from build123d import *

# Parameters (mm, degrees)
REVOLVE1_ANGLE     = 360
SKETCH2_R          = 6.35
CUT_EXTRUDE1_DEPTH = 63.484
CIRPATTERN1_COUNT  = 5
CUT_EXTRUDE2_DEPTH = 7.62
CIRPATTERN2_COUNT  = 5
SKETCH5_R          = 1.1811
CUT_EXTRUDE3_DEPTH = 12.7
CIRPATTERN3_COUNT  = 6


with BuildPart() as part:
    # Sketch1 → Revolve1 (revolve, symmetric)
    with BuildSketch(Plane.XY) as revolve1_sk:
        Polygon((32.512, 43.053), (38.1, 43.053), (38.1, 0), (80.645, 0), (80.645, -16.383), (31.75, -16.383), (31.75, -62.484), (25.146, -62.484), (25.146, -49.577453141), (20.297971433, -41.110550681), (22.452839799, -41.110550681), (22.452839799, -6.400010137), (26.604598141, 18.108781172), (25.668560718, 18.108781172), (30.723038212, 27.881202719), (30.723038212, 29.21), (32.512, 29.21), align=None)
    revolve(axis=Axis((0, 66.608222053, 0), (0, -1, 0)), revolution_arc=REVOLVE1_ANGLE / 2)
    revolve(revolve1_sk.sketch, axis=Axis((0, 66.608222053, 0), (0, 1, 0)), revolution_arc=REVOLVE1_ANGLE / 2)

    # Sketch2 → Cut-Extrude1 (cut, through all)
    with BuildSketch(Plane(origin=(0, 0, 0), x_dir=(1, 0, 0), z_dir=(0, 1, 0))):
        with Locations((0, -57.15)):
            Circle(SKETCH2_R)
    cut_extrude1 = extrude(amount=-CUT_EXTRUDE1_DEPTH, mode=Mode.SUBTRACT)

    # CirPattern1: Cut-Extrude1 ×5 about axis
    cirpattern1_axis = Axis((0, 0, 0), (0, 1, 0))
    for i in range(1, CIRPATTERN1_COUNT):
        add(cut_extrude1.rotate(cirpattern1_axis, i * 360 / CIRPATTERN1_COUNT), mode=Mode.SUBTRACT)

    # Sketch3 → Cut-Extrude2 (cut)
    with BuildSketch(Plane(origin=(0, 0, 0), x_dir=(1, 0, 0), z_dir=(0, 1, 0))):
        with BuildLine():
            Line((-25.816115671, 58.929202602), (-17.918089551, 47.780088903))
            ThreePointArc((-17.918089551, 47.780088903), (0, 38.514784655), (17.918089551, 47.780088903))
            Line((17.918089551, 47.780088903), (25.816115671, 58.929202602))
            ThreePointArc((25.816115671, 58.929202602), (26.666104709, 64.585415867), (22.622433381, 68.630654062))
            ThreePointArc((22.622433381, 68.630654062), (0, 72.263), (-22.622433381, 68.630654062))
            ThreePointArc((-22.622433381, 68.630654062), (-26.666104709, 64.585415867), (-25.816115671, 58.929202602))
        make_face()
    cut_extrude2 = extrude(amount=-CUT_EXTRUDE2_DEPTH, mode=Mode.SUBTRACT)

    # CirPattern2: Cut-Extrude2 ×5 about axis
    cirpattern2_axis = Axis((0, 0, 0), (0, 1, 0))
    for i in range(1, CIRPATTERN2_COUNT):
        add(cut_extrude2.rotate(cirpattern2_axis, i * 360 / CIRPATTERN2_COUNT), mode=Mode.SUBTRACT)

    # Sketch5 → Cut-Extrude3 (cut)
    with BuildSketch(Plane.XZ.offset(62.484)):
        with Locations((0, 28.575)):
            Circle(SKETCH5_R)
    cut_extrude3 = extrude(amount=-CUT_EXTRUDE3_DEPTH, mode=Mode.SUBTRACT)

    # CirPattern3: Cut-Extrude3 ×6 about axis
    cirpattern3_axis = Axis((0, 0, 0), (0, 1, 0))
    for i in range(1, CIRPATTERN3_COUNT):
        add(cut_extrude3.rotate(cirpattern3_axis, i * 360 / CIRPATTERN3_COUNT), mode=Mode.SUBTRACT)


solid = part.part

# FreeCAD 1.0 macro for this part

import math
import FreeCAD as App
import Part
import Sketcher

V = App.Vector
Q = App.Units.Quantity

doc = App.newDocument("Part")
params = doc.addObject("Spreadsheet::Sheet", "Params")
for row, (alias, value) in enumerate([
    ("sketch1_width", "0.22 in"),
    ("sketch1_width2", "0.26 in"),
    ("sketch1_width3", "1.925 in"),
    ("sketch1_width4", "1.675 in"),
    ("sketch1_height", "0.545 in"),
    ("revolution_angle", "180 deg"),
    ("sketch2_width", "0.22 in"),
    ("sketch2_width2", "0.26 in"),
    ("sketch2_width3", "1.925 in"),
    ("sketch2_width4", "1.675 in"),
    ("sketch2_height", "0.545 in"),
    ("revolution2_angle", "180 deg"),
    ("sketch3_diameter", "0.5 in"),
    ("sketch4_radius", "0.25 in"),
    ("sketch4_radius2", "2.845 in"),
    ("pocket2_length", "0.3 in"),
    ("sketch5_diameter", "0.093 in"),
    ("pocket3_length", "0.5 in"),
], start=1):
    params.set(f"A{row}", alias)
    params.set(f"B{row}", "=" + value)
    params.setAlias(f"B{row}", alias)

body = doc.addObject("PartDesign::Body", "Body")

# Sketch on XY plane
sketch1 = body.newObject("Sketcher::SketchObject", "Sketch")
sketch1.AttachmentSupport = (doc.getObject("XY_Plane"), [""])
sketch1.MapMode = "FlatFace"
sketch1.addGeometry(Part.LineSegment(V(38.1, 43.053, 0), V(32.512, 43.053, 0)), False)
sketch1.addGeometry(Part.LineSegment(V(32.512, 43.053, 0), V(32.512, 29.21, 0)), False)
sketch1.addGeometry(Part.LineSegment(V(32.512, 29.21, 0), V(30.723038, 29.21, 0)), False)
sketch1.addGeometry(Part.LineSegment(V(30.723038, 29.21, 0), V(30.723038, 27.881203, 0)), False)
sketch1.addGeometry(Part.LineSegment(V(30.723038, 27.881203, 0), V(25.668561, 18.108781, 0)), False)
sketch1.addGeometry(Part.LineSegment(V(25.668561, 18.108781, 0), V(26.604598, 18.108781, 0)), False)
sketch1.addGeometry(Part.LineSegment(V(26.604598, 18.108781, 0), V(22.45284, -6.40001, 0)), False)
sketch1.addGeometry(Part.LineSegment(V(22.45284, -6.40001, 0), V(22.45284, -41.110551, 0)), False)
sketch1.addGeometry(Part.LineSegment(V(22.45284, -41.110551, 0), V(20.297971, -41.110551, 0)), False)
sketch1.addGeometry(Part.LineSegment(V(20.297971, -41.110551, 0), V(25.146, -49.577453, 0)), False)
sketch1.addGeometry(Part.LineSegment(V(25.146, -49.577453, 0), V(25.146, -62.484, 0)), False)
sketch1.addGeometry(Part.LineSegment(V(25.146, -62.484, 0), V(31.75, -62.484, 0)), False)
sketch1.addGeometry(Part.LineSegment(V(31.75, -62.484, 0), V(31.75, -16.383, 0)), False)
sketch1.addGeometry(Part.LineSegment(V(31.75, -16.383, 0), V(80.645, -16.383, 0)), False)
sketch1.addGeometry(Part.LineSegment(V(80.645, -16.383, 0), V(80.645, 0, 0)), False)
sketch1.addGeometry(Part.LineSegment(V(80.645, 0, 0), V(38.1, 0, 0)), False)
sketch1.addGeometry(Part.LineSegment(V(38.1, 0, 0), V(38.1, 43.053, 0)), False)
sketch1.addConstraint(Sketcher.Constraint("Coincident", 0, 2, 1, 1))
sketch1.addConstraint(Sketcher.Constraint("Coincident", 1, 2, 2, 1))
sketch1.addConstraint(Sketcher.Constraint("Coincident", 2, 2, 3, 1))
sketch1.addConstraint(Sketcher.Constraint("Coincident", 3, 2, 4, 1))
sketch1.addConstraint(Sketcher.Constraint("Coincident", 4, 2, 5, 1))
sketch1.addConstraint(Sketcher.Constraint("Coincident", 5, 2, 6, 1))
sketch1.addConstraint(Sketcher.Constraint("Coincident", 6, 2, 7, 1))
sketch1.addConstraint(Sketcher.Constraint("Coincident", 7, 2, 8, 1))
sketch1.addConstraint(Sketcher.Constraint("Coincident", 8, 2, 9, 1))
sketch1.addConstraint(Sketcher.Constraint("Coincident", 9, 2, 10, 1))
sketch1.addConstraint(Sketcher.Constraint("Coincident", 10, 2, 11, 1))
sketch1.addConstraint(Sketcher.Constraint("Coincident", 11, 2, 12, 1))
sketch1.addConstraint(Sketcher.Constraint("Coincident", 12, 2, 13, 1))
sketch1.addConstraint(Sketcher.Constraint("Coincident", 13, 2, 14, 1))
sketch1.addConstraint(Sketcher.Constraint("Coincident", 14, 2, 15, 1))
sketch1.addConstraint(Sketcher.Constraint("Coincident", 15, 2, 16, 1))
sketch1.addConstraint(Sketcher.Constraint("Coincident", 16, 2, 0, 1))
sketch1.addConstraint(Sketcher.Constraint("Horizontal", 0))
sketch1.addConstraint(Sketcher.Constraint("Vertical", 1))
sketch1.addConstraint(Sketcher.Constraint("Horizontal", 2))
sketch1.addConstraint(Sketcher.Constraint("Vertical", 3))
sketch1.addConstraint(Sketcher.Constraint("Horizontal", 5))
sketch1.addConstraint(Sketcher.Constraint("Vertical", 7))
sketch1.addConstraint(Sketcher.Constraint("Horizontal", 8))
sketch1.addConstraint(Sketcher.Constraint("Vertical", 10))
sketch1.addConstraint(Sketcher.Constraint("Horizontal", 11))
sketch1.addConstraint(Sketcher.Constraint("Vertical", 12))
sketch1.addConstraint(Sketcher.Constraint("Horizontal", 13))
sketch1.addConstraint(Sketcher.Constraint("Vertical", 14))
sketch1.addConstraint(Sketcher.Constraint("Horizontal", 15))
sketch1.addConstraint(Sketcher.Constraint("Vertical", 16))
sketch1.addConstraint(Sketcher.Constraint("PointOnObject", 14, 2, -1))
sketch1.addConstraint(Sketcher.Constraint("DistanceX", 0, 2, 0, 1, Q("0.22 in")))
sketch1.addConstraint(Sketcher.Constraint("DistanceX", 11, 1, 11, 2, Q("0.26 in")))
sketch1.addConstraint(Sketcher.Constraint("DistanceX", -1, 1, 15, 2, Q("1.5 in")))
sketch1.addConstraint(Sketcher.Constraint("DistanceX", 13, 1, 13, 2, Q("1.925 in")))
sketch1.addConstraint(Sketcher.Constraint("DistanceX", 15, 2, 15, 1, Q("1.675 in")))
sketch1.addConstraint(Sketcher.Constraint("DistanceY", 1, 2, 1, 1, Q("0.545 in")))
sketch1.addConstraint(Sketcher.Constraint("DistanceY", 12, 1, 12, 2, Q("1.815 in")))
sketch1.addConstraint(Sketcher.Constraint("DistanceY", 14, 1, 14, 2, Q("0.645 in")))
sketch1.addConstraint(Sketcher.Constraint("DistanceY", 16, 1, 16, 2, Q("1.695 in")))
sketch1.addConstraint(Sketcher.Constraint("DistanceX", 2, 2, 2, 1, Q("1.788962 mm")))
sketch1.addConstraint(Sketcher.Constraint("DistanceX", 8, 2, 8, 1, Q("2.154868 mm")))
sketch1.addConstraint(Sketcher.Constraint("DistanceY", 7, 2, 7, 1, Q("34.710541 mm")))
sketch1.addConstraint(Sketcher.Constraint("DistanceX", -1, 1, 5, 2, Q("26.604598 mm")))
sketch1.addConstraint(Sketcher.Constraint("DistanceX", 6, 2, 3, 2, Q("8.270198 mm")))
sketch1.addConstraint(Sketcher.Constraint("Distance", 4, Q("11.00218 mm")))
sketch1.addConstraint(Sketcher.Constraint("Distance", 9, Q("9.756629 mm")))
sketch1.addConstraint(Sketcher.Constraint("DistanceX", 5, 1, 5, 2, Q("0.936037 mm")))
sketch1.addConstraint(Sketcher.Constraint("DistanceY", 3, 2, 3, 1, Q("1.328797 mm")))
sketch1.addConstraint(Sketcher.Constraint("DistanceY", 10, 2, 10, 1, Q("12.906547 mm")))
sketch1.setExpression("Constraints[32]", "Params.sketch1_width")
sketch1.setExpression("Constraints[33]", "Params.sketch1_width2")
sketch1.setExpression("Constraints[35]", "Params.sketch1_width3")
sketch1.setExpression("Constraints[36]", "Params.sketch1_width4")
sketch1.setExpression("Constraints[37]", "Params.sketch1_height")
revolution = body.newObject("PartDesign::Revolution", "Revolution")
revolution.Profile = sketch1
revolution.ReferenceAxis = (sketch1, ["V_Axis"])
revolution.setExpression("Angle", "Params.revolution_angle")
revolution.Reversed = True

# Sketch on XY plane
sketch2 = body.newObject("Sketcher::SketchObject", "Sketch001")
sketch2.AttachmentSupport = (doc.getObject("XY_Plane"), [""])
sketch2.MapMode = "FlatFace"
sketch2.addGeometry(Part.LineSegment(V(38.1, 43.053, 0), V(32.512, 43.053, 0)), False)
sketch2.addGeometry(Part.LineSegment(V(32.512, 43.053, 0), V(32.512, 29.21, 0)), False)
sketch2.addGeometry(Part.LineSegment(V(32.512, 29.21, 0), V(30.723038, 29.21, 0)), False)
sketch2.addGeometry(Part.LineSegment(V(30.723038, 29.21, 0), V(30.723038, 27.881203, 0)), False)
sketch2.addGeometry(Part.LineSegment(V(30.723038, 27.881203, 0), V(25.668561, 18.108781, 0)), False)
sketch2.addGeometry(Part.LineSegment(V(25.668561, 18.108781, 0), V(26.604598, 18.108781, 0)), False)
sketch2.addGeometry(Part.LineSegment(V(26.604598, 18.108781, 0), V(22.45284, -6.40001, 0)), False)
sketch2.addGeometry(Part.LineSegment(V(22.45284, -6.40001, 0), V(22.45284, -41.110551, 0)), False)
sketch2.addGeometry(Part.LineSegment(V(22.45284, -41.110551, 0), V(20.297971, -41.110551, 0)), False)
sketch2.addGeometry(Part.LineSegment(V(20.297971, -41.110551, 0), V(25.146, -49.577453, 0)), False)
sketch2.addGeometry(Part.LineSegment(V(25.146, -49.577453, 0), V(25.146, -62.484, 0)), False)
sketch2.addGeometry(Part.LineSegment(V(25.146, -62.484, 0), V(31.75, -62.484, 0)), False)
sketch2.addGeometry(Part.LineSegment(V(31.75, -62.484, 0), V(31.75, -16.383, 0)), False)
sketch2.addGeometry(Part.LineSegment(V(31.75, -16.383, 0), V(80.645, -16.383, 0)), False)
sketch2.addGeometry(Part.LineSegment(V(80.645, -16.383, 0), V(80.645, 0, 0)), False)
sketch2.addGeometry(Part.LineSegment(V(80.645, 0, 0), V(38.1, 0, 0)), False)
sketch2.addGeometry(Part.LineSegment(V(38.1, 0, 0), V(38.1, 43.053, 0)), False)
sketch2.addConstraint(Sketcher.Constraint("Coincident", 0, 2, 1, 1))
sketch2.addConstraint(Sketcher.Constraint("Coincident", 1, 2, 2, 1))
sketch2.addConstraint(Sketcher.Constraint("Coincident", 2, 2, 3, 1))
sketch2.addConstraint(Sketcher.Constraint("Coincident", 3, 2, 4, 1))
sketch2.addConstraint(Sketcher.Constraint("Coincident", 4, 2, 5, 1))
sketch2.addConstraint(Sketcher.Constraint("Coincident", 5, 2, 6, 1))
sketch2.addConstraint(Sketcher.Constraint("Coincident", 6, 2, 7, 1))
sketch2.addConstraint(Sketcher.Constraint("Coincident", 7, 2, 8, 1))
sketch2.addConstraint(Sketcher.Constraint("Coincident", 8, 2, 9, 1))
sketch2.addConstraint(Sketcher.Constraint("Coincident", 9, 2, 10, 1))
sketch2.addConstraint(Sketcher.Constraint("Coincident", 10, 2, 11, 1))
sketch2.addConstraint(Sketcher.Constraint("Coincident", 11, 2, 12, 1))
sketch2.addConstraint(Sketcher.Constraint("Coincident", 12, 2, 13, 1))
sketch2.addConstraint(Sketcher.Constraint("Coincident", 13, 2, 14, 1))
sketch2.addConstraint(Sketcher.Constraint("Coincident", 14, 2, 15, 1))
sketch2.addConstraint(Sketcher.Constraint("Coincident", 15, 2, 16, 1))
sketch2.addConstraint(Sketcher.Constraint("Coincident", 16, 2, 0, 1))
sketch2.addConstraint(Sketcher.Constraint("Horizontal", 0))
sketch2.addConstraint(Sketcher.Constraint("Vertical", 1))
sketch2.addConstraint(Sketcher.Constraint("Horizontal", 2))
sketch2.addConstraint(Sketcher.Constraint("Vertical", 3))
sketch2.addConstraint(Sketcher.Constraint("Horizontal", 5))
sketch2.addConstraint(Sketcher.Constraint("Vertical", 7))
sketch2.addConstraint(Sketcher.Constraint("Horizontal", 8))
sketch2.addConstraint(Sketcher.Constraint("Vertical", 10))
sketch2.addConstraint(Sketcher.Constraint("Horizontal", 11))
sketch2.addConstraint(Sketcher.Constraint("Vertical", 12))
sketch2.addConstraint(Sketcher.Constraint("Horizontal", 13))
sketch2.addConstraint(Sketcher.Constraint("Vertical", 14))
sketch2.addConstraint(Sketcher.Constraint("Horizontal", 15))
sketch2.addConstraint(Sketcher.Constraint("Vertical", 16))
sketch2.addConstraint(Sketcher.Constraint("PointOnObject", 14, 2, -1))
sketch2.addConstraint(Sketcher.Constraint("DistanceX", 0, 2, 0, 1, Q("0.22 in")))
sketch2.addConstraint(Sketcher.Constraint("DistanceX", 11, 1, 11, 2, Q("0.26 in")))
sketch2.addConstraint(Sketcher.Constraint("DistanceX", -1, 1, 15, 2, Q("1.5 in")))
sketch2.addConstraint(Sketcher.Constraint("DistanceX", 13, 1, 13, 2, Q("1.925 in")))
sketch2.addConstraint(Sketcher.Constraint("DistanceX", 15, 2, 15, 1, Q("1.675 in")))
sketch2.addConstraint(Sketcher.Constraint("DistanceY", 1, 2, 1, 1, Q("0.545 in")))
sketch2.addConstraint(Sketcher.Constraint("DistanceY", 12, 1, 12, 2, Q("1.815 in")))
sketch2.addConstraint(Sketcher.Constraint("DistanceY", 14, 1, 14, 2, Q("0.645 in")))
sketch2.addConstraint(Sketcher.Constraint("DistanceY", 16, 1, 16, 2, Q("1.695 in")))
sketch2.addConstraint(Sketcher.Constraint("DistanceX", 2, 2, 2, 1, Q("1.788962 mm")))
sketch2.addConstraint(Sketcher.Constraint("DistanceX", 8, 2, 8, 1, Q("2.154868 mm")))
sketch2.addConstraint(Sketcher.Constraint("DistanceY", 7, 2, 7, 1, Q("34.710541 mm")))
sketch2.addConstraint(Sketcher.Constraint("DistanceX", -1, 1, 5, 2, Q("26.604598 mm")))
sketch2.addConstraint(Sketcher.Constraint("DistanceX", 6, 2, 3, 2, Q("8.270198 mm")))
sketch2.addConstraint(Sketcher.Constraint("Distance", 4, Q("11.00218 mm")))
sketch2.addConstraint(Sketcher.Constraint("Distance", 9, Q("9.756629 mm")))
sketch2.addConstraint(Sketcher.Constraint("DistanceX", 5, 1, 5, 2, Q("0.936037 mm")))
sketch2.addConstraint(Sketcher.Constraint("DistanceY", 3, 2, 3, 1, Q("1.328797 mm")))
sketch2.addConstraint(Sketcher.Constraint("DistanceY", 10, 2, 10, 1, Q("12.906547 mm")))
sketch2.setExpression("Constraints[32]", "Params.sketch2_width")
sketch2.setExpression("Constraints[33]", "Params.sketch2_width2")
sketch2.setExpression("Constraints[35]", "Params.sketch2_width3")
sketch2.setExpression("Constraints[36]", "Params.sketch2_width4")
sketch2.setExpression("Constraints[37]", "Params.sketch2_height")
revolution2 = body.newObject("PartDesign::Revolution", "Revolution001")
revolution2.Profile = sketch2
revolution2.ReferenceAxis = (sketch2, ["V_Axis"])
revolution2.setExpression("Angle", "Params.revolution2_angle")

# Sketch on XZ plane
sketch3 = body.newObject("Sketcher::SketchObject", "Sketch002")
sketch3.AttachmentSupport = (doc.getObject("XZ_Plane"), [""])
sketch3.MapMode = "FlatFace"
sketch3.addGeometry(Part.Circle(V(0, 57.15, 0), V(0, 0, 1), 6.35), False)
sketch3.addConstraint(Sketcher.Constraint("PointOnObject", 0, 3, -2))
sketch3.addConstraint(Sketcher.Constraint("Diameter", 0, Q("0.5 in")))
sketch3.addConstraint(Sketcher.Constraint("DistanceY", -1, 1, 0, 3, Q("2.25 in")))
sketch3.setExpression("Constraints[1]", "Params.sketch3_diameter")
pocket1 = body.newObject("PartDesign::Pocket", "Pocket")
pocket1.Profile = sketch3
pocket1.Type = "ThroughAll"
pocket1.Reversed = True
doc.recompute()

polarpattern = body.newObject("PartDesign::PolarPattern", "PolarPattern")
polarpattern.Originals = [pocket1]
polarpattern.Axis = (doc.getObject("Y_Axis"), [""])
polarpattern.Angle = 360
polarpattern.Occurrences = 5
body.Tip = polarpattern

# Sketch on XZ plane
sketch4 = body.newObject("Sketcher::SketchObject", "Sketch003")
sketch4.AttachmentSupport = (doc.getObject("XZ_Plane"), [""])
sketch4.MapMode = "FlatFace"
sketch4.addGeometry(Part.LineSegment(V(-25.816116, -58.929203, 0), V(-17.91809, -47.780089, 0)), False)
sketch4.addGeometry(Part.ArcOfCircle(Part.Circle(V(0, -60.473254, 0), V(0, 0, 1), 21.958469), math.radians(35.313736), math.radians(144.686264)), False)
sketch4.addGeometry(Part.LineSegment(V(17.91809, -47.780089, 0), V(25.816116, -58.929203, 0)), False)
sketch4.addGeometry(Part.ArcOfCircle(Part.Circle(V(20.634522, -62.599841, 0), V(0, 0, 1), 6.35), math.radians(-71.756447), math.radians(35.313736)), False)
sketch4.addGeometry(Part.ArcOfCircle(Part.Circle(V(0, 0, 0), V(0, 0, 1), 72.263), math.radians(-108.243553), math.radians(-71.756447)), False)
sketch4.addGeometry(Part.ArcOfCircle(Part.Circle(V(-20.634522, -62.599841, 0), V(0, 0, 1), 6.35), math.radians(144.686264), math.radians(251.756447)), False)
sketch4.addConstraint(Sketcher.Constraint("Tangent", 0, 2, 1, 2))
sketch4.addConstraint(Sketcher.Constraint("Tangent", 1, 1, 2, 1))
sketch4.addConstraint(Sketcher.Constraint("Tangent", 2, 2, 3, 2))
sketch4.addConstraint(Sketcher.Constraint("Tangent", 3, 1, 4, 2))
sketch4.addConstraint(Sketcher.Constraint("Tangent", 4, 1, 5, 2))
sketch4.addConstraint(Sketcher.Constraint("Tangent", 5, 1, 0, 1))
sketch4.addConstraint(Sketcher.Constraint("Coincident", 4, 3, -1, 1))
sketch4.addConstraint(Sketcher.Constraint("Equal", 3, 5))
sketch4.addConstraint(Sketcher.Constraint("Symmetric", 0, 2, 1, 1, -2))
sketch4.addConstraint(Sketcher.Constraint("Radius", 3, Q("0.25 in")))
sketch4.addConstraint(Sketcher.Constraint("Radius", 4, Q("2.845 in")))
sketch4.addConstraint(Sketcher.Constraint("Radius", 1, Q("21.958469 mm")))
sketch4.addConstraint(Sketcher.Constraint("DistanceY", 3, 1, 1, 3, Q("8.1574 mm")))
sketch4.addConstraint(Sketcher.Constraint("DistanceX", -1, 1, 3, 3, Q("20.634522 mm")))
sketch4.setExpression("Constraints[9]", "Params.sketch4_radius")
sketch4.setExpression("Constraints[10]", "Params.sketch4_radius2")
pocket2 = body.newObject("PartDesign::Pocket", "Pocket001")
pocket2.Profile = sketch4
pocket2.setExpression("Length", "Params.pocket2_length")
pocket2.Reversed = True
doc.recompute()

polarpattern2 = body.newObject("PartDesign::PolarPattern", "PolarPattern001")
polarpattern2.Originals = [pocket2]
polarpattern2.Axis = (doc.getObject("Y_Axis"), [""])
polarpattern2.Angle = 360
polarpattern2.Occurrences = 5
body.Tip = polarpattern2

# Sketch on XZ plane
sketch5 = body.newObject("Sketcher::SketchObject", "Sketch004")
sketch5.AttachmentSupport = (doc.getObject("XZ_Plane"), [""])
sketch5.MapMode = "FlatFace"
sketch5.AttachmentOffset = App.Placement(V(0, 0, 2.46 * 25.4), App.Rotation())
sketch5.addGeometry(Part.Circle(V(0, 28.575, 0), V(0, 0, 1), 1.1811), False)
sketch5.addConstraint(Sketcher.Constraint("PointOnObject", 0, 3, -2))
sketch5.addConstraint(Sketcher.Constraint("Diameter", 0, Q("0.093 in")))
sketch5.addConstraint(Sketcher.Constraint("DistanceY", -1, 1, 0, 3, Q("1.125 in")))
sketch5.setExpression("Constraints[1]", "Params.sketch5_diameter")
pocket3 = body.newObject("PartDesign::Pocket", "Pocket002")
pocket3.Profile = sketch5
pocket3.setExpression("Length", "Params.pocket3_length")
doc.recompute()

polarpattern3 = body.newObject("PartDesign::PolarPattern", "PolarPattern002")
polarpattern3.Originals = [pocket3]
polarpattern3.Axis = (doc.getObject("Y_Axis"), [""])
polarpattern3.Angle = 360
polarpattern3.Occurrences = 6
body.Tip = polarpattern3

doc.recompute()
